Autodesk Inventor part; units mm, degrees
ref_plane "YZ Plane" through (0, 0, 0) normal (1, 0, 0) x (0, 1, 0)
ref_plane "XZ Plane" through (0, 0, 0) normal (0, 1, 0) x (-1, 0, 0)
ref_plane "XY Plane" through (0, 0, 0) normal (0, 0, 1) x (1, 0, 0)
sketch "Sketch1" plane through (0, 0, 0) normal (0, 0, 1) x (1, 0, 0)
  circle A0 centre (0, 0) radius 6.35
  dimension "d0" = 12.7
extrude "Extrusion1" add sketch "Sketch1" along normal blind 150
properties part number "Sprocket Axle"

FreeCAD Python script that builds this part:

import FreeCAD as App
import Part
import Sketcher
from FreeCAD import Vector
Q = App.Units.Quantity

doc = App.newDocument("Part")
params = doc.addObject("Spreadsheet::Sheet", "Params")
for row, (alias, value) in enumerate([
    ("sketch1_diameter", "0.5 in"),
    ("pad1_length", "5.9055118 in"),
], start=1):
    params.set(f"A{row}", alias)
    params.set(f"B{row}", "=" + value)
    params.setAlias(f"B{row}", alias)

body = doc.addObject("PartDesign::Body", "Body")

# Sketch on XY plane
sketch1 = body.newObject("Sketcher::SketchObject", "Sketch")
sketch1.AttachmentSupport = (doc.getObject("XY_Plane"), [""])
sketch1.MapMode = "FlatFace"
sketch1.addGeometry(Part.Circle(Vector(0, 0, 0), Vector(0, 0, 1), 6), False)
sketch1.addConstraint([
    Sketcher.Constraint("Coincident", 0, 3, -1, 1),
    Sketcher.Constraint("Diameter", 0, Q("0.5 in")),
])
sketch1.setExpression("Constraints[1]", "Params.sketch1_diameter")
pad1 = body.newObject("PartDesign::Pad", "Pad")
pad1.Profile = sketch1
pad1.setExpression("Length", "Params.pad1_length")

doc.recompute()
